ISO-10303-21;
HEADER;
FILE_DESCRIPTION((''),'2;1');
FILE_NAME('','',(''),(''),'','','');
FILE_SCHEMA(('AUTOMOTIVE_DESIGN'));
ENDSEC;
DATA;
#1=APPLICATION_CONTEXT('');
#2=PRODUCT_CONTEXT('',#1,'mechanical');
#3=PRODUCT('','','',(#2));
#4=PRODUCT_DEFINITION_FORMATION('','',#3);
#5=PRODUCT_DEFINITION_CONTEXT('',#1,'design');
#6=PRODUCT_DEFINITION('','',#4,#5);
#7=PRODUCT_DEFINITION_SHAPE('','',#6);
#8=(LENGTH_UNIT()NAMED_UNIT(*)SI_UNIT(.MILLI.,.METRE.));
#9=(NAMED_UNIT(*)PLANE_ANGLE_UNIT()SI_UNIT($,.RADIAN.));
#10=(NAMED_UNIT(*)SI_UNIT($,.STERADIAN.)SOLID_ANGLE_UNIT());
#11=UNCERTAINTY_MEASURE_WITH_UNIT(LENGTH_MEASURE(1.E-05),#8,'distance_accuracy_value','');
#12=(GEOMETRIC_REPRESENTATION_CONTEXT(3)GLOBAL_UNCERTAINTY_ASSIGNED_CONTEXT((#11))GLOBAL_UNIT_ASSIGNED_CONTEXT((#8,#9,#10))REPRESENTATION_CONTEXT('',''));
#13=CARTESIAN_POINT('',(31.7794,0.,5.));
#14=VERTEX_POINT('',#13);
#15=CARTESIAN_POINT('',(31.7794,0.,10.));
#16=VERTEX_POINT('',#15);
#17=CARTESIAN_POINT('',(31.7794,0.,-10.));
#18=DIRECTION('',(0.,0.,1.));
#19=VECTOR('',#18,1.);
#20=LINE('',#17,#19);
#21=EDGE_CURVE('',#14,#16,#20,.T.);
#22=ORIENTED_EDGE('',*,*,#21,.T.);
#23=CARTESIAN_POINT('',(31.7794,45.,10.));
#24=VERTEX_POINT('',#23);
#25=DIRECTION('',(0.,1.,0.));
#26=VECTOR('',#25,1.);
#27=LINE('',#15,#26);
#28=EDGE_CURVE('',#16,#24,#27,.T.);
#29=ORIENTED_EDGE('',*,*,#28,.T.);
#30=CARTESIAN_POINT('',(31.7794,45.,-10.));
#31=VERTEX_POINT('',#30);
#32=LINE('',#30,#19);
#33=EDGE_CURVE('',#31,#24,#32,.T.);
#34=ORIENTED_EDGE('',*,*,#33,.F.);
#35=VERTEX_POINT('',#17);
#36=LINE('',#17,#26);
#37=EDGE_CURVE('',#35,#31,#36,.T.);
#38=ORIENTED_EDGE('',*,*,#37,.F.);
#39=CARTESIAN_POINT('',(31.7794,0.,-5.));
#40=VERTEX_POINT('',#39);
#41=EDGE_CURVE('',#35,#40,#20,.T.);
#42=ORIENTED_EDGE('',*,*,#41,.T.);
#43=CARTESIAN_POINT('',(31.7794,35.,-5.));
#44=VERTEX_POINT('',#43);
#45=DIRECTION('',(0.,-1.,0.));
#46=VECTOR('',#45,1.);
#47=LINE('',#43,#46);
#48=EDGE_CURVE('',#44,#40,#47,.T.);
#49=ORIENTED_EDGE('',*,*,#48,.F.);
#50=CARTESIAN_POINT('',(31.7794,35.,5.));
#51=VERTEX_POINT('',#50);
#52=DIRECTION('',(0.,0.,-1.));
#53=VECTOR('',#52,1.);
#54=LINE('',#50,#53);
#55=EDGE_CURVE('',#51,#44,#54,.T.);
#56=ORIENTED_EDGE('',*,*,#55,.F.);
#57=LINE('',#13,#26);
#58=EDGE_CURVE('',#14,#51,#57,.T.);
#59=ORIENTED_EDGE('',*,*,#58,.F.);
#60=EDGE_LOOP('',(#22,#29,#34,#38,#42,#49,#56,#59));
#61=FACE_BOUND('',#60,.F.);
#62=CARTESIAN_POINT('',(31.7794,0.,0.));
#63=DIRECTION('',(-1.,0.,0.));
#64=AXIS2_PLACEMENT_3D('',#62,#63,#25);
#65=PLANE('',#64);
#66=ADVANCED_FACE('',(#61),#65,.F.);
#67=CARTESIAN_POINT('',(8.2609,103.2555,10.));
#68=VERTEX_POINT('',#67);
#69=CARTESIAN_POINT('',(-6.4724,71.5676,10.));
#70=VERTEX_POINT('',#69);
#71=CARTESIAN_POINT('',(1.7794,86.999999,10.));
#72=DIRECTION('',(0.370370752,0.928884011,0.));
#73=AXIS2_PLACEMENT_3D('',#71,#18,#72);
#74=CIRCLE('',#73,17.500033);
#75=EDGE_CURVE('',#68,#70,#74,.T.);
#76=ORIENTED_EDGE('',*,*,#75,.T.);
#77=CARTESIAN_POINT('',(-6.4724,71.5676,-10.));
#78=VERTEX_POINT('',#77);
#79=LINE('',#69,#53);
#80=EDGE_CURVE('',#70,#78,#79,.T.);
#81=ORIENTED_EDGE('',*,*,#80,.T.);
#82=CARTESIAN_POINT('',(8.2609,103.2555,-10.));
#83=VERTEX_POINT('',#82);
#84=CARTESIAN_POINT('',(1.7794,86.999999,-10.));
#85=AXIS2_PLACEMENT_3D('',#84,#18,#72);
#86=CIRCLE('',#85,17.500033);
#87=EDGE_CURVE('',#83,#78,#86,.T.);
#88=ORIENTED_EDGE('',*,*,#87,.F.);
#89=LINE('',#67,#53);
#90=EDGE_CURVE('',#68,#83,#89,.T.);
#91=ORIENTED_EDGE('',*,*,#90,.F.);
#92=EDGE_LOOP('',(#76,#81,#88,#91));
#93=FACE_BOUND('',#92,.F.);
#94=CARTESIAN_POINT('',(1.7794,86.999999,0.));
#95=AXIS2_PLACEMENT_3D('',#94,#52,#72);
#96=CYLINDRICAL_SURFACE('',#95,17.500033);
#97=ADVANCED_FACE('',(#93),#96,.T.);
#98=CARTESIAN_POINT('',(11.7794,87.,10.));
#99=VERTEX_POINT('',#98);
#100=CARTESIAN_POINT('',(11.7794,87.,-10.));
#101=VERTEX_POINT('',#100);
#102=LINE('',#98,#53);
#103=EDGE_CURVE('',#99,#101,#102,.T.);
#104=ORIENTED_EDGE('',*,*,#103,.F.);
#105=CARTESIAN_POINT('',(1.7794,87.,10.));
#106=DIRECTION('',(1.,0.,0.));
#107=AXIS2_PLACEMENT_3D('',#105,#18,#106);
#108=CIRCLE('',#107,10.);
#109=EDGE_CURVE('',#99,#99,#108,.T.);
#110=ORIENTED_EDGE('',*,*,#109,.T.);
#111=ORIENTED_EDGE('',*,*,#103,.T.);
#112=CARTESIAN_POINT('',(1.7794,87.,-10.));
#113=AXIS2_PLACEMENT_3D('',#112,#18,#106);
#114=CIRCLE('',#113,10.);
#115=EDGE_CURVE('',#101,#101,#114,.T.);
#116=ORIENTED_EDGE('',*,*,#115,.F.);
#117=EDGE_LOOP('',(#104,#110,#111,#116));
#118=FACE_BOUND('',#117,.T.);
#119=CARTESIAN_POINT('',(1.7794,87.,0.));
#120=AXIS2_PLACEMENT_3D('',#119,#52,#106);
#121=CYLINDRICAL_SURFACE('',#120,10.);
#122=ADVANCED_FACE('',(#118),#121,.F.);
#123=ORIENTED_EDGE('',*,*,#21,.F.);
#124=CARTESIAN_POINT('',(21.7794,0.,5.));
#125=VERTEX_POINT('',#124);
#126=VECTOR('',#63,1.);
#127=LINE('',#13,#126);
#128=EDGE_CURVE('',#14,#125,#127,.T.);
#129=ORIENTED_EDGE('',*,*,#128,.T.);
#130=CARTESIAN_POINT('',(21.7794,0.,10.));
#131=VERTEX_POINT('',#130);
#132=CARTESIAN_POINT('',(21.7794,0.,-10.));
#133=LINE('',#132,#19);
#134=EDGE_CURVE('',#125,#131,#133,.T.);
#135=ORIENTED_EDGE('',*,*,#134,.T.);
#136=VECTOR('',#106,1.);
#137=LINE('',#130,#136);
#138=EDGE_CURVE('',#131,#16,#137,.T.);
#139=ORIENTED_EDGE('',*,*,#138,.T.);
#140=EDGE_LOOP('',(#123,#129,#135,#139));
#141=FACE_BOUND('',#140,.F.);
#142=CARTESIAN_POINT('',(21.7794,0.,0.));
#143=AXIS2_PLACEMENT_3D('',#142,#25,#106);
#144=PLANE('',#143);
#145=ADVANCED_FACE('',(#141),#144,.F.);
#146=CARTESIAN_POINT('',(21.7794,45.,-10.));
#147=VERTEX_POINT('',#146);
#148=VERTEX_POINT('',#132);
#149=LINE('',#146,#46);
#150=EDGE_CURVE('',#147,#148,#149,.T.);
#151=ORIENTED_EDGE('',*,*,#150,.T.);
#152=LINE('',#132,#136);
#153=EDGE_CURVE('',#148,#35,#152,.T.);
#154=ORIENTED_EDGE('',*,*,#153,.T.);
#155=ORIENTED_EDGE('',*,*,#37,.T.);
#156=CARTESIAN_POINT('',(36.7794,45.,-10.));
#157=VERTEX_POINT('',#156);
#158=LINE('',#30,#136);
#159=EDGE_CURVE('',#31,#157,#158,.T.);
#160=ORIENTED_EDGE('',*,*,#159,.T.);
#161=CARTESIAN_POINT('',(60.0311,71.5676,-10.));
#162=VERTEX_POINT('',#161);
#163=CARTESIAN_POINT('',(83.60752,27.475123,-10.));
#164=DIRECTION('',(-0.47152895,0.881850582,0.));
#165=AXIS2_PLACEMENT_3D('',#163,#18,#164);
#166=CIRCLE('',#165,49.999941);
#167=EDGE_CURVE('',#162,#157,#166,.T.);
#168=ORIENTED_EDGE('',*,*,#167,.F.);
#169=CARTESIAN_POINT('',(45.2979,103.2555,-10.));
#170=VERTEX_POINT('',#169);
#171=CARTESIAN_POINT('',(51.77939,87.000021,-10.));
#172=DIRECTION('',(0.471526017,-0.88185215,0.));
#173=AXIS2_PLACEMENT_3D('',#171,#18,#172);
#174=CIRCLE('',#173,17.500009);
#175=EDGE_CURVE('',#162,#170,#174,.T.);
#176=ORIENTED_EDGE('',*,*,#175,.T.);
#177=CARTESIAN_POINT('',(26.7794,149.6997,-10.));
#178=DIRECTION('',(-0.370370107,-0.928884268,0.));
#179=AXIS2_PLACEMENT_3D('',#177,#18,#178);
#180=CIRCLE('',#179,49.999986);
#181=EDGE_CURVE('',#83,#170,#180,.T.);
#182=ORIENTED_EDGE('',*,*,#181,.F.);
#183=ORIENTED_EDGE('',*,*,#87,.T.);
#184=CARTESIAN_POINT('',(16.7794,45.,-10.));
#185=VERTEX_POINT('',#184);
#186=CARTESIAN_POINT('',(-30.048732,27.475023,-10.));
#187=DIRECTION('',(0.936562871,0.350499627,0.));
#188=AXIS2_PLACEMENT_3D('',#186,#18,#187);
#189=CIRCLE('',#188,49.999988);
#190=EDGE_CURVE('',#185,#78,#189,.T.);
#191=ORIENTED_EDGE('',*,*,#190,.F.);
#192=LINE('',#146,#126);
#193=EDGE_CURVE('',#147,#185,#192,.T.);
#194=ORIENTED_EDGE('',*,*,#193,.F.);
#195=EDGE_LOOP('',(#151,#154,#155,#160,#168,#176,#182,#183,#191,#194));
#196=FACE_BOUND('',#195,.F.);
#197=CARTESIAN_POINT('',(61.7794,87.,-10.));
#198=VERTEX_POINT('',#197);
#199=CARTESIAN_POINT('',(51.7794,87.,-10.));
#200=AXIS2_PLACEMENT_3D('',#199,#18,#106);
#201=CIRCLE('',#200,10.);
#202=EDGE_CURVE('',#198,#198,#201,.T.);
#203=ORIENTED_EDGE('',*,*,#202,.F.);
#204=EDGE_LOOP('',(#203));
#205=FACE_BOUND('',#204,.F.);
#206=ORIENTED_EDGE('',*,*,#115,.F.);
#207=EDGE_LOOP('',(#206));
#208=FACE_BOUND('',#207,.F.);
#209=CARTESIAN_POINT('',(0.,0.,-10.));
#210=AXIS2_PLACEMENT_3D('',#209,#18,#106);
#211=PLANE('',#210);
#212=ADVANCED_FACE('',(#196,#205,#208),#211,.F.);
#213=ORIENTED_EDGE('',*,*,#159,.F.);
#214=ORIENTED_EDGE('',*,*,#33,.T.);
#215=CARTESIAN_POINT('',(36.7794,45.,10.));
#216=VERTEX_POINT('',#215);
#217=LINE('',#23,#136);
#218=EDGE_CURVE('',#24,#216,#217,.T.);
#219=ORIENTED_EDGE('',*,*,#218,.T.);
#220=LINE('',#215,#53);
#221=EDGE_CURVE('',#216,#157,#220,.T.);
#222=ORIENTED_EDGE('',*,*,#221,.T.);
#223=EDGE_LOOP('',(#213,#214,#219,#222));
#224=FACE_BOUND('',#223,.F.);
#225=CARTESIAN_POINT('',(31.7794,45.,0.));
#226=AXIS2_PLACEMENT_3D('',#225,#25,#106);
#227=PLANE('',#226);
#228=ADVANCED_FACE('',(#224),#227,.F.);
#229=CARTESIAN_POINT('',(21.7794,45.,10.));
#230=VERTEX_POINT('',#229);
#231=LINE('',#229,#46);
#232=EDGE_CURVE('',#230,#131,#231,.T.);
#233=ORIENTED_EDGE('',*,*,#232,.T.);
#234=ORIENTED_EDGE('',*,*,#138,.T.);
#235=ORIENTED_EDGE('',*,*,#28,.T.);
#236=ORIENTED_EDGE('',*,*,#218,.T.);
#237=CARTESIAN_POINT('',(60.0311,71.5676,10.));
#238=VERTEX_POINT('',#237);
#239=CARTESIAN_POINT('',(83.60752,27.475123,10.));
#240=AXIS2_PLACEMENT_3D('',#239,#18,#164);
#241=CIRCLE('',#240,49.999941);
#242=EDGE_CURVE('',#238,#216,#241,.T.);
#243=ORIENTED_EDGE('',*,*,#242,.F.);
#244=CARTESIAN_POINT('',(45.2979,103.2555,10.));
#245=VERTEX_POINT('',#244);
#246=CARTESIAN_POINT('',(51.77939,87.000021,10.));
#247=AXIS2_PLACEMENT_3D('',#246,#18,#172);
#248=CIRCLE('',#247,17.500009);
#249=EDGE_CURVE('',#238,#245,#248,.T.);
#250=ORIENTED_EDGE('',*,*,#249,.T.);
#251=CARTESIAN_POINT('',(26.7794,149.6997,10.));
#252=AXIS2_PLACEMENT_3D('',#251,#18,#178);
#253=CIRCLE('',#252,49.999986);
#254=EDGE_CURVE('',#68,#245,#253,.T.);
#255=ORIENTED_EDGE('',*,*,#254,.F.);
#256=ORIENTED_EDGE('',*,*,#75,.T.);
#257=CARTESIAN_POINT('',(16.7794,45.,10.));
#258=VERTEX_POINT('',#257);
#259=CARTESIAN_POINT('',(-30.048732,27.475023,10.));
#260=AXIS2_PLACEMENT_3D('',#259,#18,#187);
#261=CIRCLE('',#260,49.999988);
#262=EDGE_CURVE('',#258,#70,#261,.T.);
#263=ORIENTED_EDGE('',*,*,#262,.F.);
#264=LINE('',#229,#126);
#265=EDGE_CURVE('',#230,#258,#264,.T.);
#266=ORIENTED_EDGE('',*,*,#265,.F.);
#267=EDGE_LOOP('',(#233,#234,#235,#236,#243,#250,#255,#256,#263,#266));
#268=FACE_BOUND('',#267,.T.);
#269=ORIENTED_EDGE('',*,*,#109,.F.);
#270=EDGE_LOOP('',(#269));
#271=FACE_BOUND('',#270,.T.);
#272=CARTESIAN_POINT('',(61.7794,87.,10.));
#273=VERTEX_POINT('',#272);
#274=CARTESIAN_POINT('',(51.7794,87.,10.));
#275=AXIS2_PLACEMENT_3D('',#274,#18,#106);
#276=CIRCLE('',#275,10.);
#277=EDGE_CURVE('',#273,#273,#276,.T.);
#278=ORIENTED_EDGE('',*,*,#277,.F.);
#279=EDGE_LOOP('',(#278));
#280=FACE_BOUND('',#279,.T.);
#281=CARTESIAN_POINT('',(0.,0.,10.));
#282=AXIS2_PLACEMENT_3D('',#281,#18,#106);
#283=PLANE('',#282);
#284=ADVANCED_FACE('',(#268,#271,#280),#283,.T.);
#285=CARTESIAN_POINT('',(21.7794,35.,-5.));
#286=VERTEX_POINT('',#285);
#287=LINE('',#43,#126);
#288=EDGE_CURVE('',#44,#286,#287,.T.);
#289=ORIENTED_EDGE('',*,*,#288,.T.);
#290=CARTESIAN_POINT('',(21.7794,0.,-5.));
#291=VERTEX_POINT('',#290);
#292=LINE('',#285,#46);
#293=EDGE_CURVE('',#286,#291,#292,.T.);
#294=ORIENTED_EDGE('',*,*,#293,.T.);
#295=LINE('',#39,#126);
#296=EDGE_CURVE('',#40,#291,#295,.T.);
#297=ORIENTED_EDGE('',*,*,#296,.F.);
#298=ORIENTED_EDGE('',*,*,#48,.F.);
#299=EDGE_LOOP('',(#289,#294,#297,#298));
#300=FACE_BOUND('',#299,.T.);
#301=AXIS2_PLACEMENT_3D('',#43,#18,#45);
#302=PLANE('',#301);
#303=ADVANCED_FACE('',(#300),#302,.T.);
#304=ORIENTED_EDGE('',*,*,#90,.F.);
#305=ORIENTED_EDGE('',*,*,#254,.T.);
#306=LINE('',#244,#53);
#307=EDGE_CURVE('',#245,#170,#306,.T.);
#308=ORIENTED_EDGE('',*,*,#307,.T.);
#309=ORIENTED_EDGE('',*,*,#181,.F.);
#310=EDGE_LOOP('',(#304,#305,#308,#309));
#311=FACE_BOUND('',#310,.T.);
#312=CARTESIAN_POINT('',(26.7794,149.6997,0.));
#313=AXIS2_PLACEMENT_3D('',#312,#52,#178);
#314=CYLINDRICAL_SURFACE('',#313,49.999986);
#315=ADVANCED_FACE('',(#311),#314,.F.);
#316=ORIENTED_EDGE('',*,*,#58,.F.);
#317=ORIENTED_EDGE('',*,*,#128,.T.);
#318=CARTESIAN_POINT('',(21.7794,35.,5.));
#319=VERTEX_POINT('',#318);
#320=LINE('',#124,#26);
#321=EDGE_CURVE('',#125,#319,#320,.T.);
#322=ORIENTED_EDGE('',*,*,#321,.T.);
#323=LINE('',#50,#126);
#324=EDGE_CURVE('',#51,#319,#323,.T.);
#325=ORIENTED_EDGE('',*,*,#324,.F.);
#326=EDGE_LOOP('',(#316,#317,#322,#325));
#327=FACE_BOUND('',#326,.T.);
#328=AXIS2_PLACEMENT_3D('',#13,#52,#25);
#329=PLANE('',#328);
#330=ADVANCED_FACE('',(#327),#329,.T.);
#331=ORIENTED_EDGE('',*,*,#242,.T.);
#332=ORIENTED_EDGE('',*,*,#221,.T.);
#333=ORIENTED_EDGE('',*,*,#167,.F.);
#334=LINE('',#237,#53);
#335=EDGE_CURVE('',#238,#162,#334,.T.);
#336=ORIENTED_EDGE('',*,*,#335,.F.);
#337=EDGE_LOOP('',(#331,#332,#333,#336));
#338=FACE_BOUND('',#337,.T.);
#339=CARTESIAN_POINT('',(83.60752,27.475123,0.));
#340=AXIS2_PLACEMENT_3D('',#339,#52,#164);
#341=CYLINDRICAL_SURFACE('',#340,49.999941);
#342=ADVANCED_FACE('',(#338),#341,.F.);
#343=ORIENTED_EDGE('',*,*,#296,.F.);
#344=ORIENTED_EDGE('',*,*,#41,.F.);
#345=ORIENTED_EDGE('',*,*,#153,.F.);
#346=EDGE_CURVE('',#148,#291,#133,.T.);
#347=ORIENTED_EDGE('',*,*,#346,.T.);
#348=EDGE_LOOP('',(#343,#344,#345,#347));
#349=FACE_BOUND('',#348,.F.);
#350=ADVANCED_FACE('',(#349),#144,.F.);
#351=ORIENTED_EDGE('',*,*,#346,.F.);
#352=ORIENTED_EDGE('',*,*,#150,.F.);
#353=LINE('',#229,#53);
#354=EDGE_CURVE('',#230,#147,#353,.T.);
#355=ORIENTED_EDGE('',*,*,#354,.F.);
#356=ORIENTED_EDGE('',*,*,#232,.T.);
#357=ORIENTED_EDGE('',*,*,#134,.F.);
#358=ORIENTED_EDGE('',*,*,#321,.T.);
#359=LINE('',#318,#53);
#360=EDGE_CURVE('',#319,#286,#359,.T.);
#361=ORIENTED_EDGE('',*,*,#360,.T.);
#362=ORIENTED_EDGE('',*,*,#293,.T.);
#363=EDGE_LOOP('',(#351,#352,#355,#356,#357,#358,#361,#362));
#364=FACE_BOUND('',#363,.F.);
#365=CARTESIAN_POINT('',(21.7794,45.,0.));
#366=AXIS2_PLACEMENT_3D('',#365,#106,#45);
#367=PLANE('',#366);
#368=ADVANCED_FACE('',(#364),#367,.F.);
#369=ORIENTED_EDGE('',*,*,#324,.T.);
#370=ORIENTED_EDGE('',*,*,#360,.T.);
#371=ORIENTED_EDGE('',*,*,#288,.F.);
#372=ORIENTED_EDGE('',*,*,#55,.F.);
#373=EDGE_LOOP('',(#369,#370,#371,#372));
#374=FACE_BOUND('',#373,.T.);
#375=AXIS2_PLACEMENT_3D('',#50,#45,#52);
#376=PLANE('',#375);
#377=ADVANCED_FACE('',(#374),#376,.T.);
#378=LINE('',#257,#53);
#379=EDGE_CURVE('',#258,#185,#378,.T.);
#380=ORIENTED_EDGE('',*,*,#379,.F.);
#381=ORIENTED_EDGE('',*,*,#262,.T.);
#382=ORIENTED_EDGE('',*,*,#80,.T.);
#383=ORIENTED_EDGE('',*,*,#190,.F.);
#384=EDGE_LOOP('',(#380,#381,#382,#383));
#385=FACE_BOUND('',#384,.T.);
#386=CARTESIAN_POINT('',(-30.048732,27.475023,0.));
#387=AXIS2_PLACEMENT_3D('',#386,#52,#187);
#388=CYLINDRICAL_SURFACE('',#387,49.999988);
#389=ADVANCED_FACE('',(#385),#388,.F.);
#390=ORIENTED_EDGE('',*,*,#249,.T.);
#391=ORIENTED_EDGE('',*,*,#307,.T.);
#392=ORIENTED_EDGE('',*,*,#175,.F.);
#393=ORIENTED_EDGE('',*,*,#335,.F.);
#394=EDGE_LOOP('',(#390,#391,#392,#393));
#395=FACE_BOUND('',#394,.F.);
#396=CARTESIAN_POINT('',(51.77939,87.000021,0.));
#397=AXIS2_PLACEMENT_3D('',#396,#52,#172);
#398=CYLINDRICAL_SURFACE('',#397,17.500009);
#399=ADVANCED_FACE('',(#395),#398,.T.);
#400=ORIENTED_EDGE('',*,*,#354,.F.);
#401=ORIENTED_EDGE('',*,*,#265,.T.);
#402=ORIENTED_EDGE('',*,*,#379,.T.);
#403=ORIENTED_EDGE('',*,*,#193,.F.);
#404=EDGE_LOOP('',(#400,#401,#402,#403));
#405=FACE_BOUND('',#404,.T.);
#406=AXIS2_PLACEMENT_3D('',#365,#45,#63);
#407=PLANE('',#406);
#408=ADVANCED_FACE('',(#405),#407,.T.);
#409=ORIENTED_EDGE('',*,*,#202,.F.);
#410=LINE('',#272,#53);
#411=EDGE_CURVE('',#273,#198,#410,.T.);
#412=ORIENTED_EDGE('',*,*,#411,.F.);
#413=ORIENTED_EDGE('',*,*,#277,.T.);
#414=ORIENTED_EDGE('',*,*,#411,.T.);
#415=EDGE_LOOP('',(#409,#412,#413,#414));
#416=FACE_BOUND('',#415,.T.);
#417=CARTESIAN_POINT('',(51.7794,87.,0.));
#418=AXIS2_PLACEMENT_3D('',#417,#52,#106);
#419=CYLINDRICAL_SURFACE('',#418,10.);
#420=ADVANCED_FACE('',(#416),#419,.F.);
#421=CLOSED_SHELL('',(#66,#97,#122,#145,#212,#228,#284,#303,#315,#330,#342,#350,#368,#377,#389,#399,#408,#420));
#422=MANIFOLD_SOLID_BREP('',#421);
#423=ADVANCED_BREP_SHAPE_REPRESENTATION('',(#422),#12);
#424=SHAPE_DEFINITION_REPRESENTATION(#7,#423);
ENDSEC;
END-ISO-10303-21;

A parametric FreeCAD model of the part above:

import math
import FreeCAD as App
import Part
import Sketcher

doc = App.newDocument("Part")
params = doc.addObject("Spreadsheet::Sheet", "Params")
for row, (alias, value) in enumerate([
    ("sketch1_diameter", "20 mm"),
    ("sketch1_radius", "50 mm"),
    ("sketch1_radius2", "17.5 mm"),
    ("sketch1_width", "10 mm"),
    ("sketch1_width2", "5 mm"),
    ("pad1_length", "20 mm"),
    ("sketch2_width", "35 mm"),
    ("sketch2_height", "10 mm"),
    ("pocket1_length", "10 mm"),
], start=1):
    params.set(f"A{row}", alias)
    params.set(f"B{row}", "=" + value)
    params.setAlias(f"B{row}", alias)

body = doc.addObject("PartDesign::Body", "Body")

sketch1 = doc.addObject("Sketcher::SketchObject", "Sketch")
body.addObject(sketch1)
sketch1.AttachmentSupport = (doc.XY_Plane, [""])
sketch1.MapMode = "FlatFace"
sketch1.addGeometry([
    Part.LineSegment(App.Vector(22, 45, 0), App.Vector(22, 0, 0)),
    Part.LineSegment(App.Vector(22, 0, 0), App.Vector(32, 0, 0)),
    Part.LineSegment(App.Vector(32, 0, 0), App.Vector(32, 45, 0)),
    Part.LineSegment(App.Vector(32, 45, 0), App.Vector(37, 45, 0)),
    Part.ArcOfCircle(Part.Circle(App.Vector(84, 27, 0), App.Vector(0, 0, 1), 50), math.radians(118), math.radians(159)),
    Part.ArcOfCircle(Part.Circle(App.Vector(52, 87, 0), App.Vector(0, 0, 1), 17), math.radians(-62), math.radians(112)),
    Part.ArcOfCircle(Part.Circle(App.Vector(27, 150, 0), App.Vector(0, 0, 1), 50), math.radians(-112), math.radians(-68)),
    Part.ArcOfCircle(Part.Circle(App.Vector(2, 87, 0), App.Vector(0, 0, 1), 18), math.radians(68), math.radians(242)),
    Part.ArcOfCircle(Part.Circle(App.Vector(-30, 27, 0), App.Vector(0, 0, 1), 50), math.radians(21), math.radians(62)),
    Part.LineSegment(App.Vector(17, 45, 0), App.Vector(22, 45, 0)),
    Part.Circle(App.Vector(2, 87, 0), App.Vector(0, 0, 1), 10),
    Part.Circle(App.Vector(52, 87, 0), App.Vector(0, 0, 1), 10),
], False)
sketch1.addConstraint([
    Sketcher.Constraint("Coincident", 0, 2, 1, 1),
    Sketcher.Constraint("Coincident", 1, 2, 2, 1),
    Sketcher.Constraint("Coincident", 2, 2, 3, 1),
    Sketcher.Constraint("Coincident", 3, 2, 4, 2),
    Sketcher.Constraint("Tangent", 4, 1, 5, 1),
    Sketcher.Constraint("Tangent", 5, 2, 6, 2),
    Sketcher.Constraint("Tangent", 6, 1, 7, 1),
    Sketcher.Constraint("Tangent", 7, 2, 8, 2),
    Sketcher.Constraint("Coincident", 8, 1, 9, 1),
    Sketcher.Constraint("Coincident", 9, 2, 0, 1),
    Sketcher.Constraint("Vertical", 0),
    Sketcher.Constraint("Horizontal", 1),
    Sketcher.Constraint("Vertical", 2),
    Sketcher.Constraint("Horizontal", 3),
    Sketcher.Constraint("Horizontal", 9),
    Sketcher.Constraint("Coincident", 10, 3, 7, 3),
    Sketcher.Constraint("Coincident", 11, 3, 5, 3),
    Sketcher.Constraint("Equal", 4, 6),
    Sketcher.Constraint("Equal", 5, 7),
    Sketcher.Constraint("Equal", 6, 8),
    Sketcher.Constraint("Equal", 10, 11),
    Sketcher.Constraint("PointOnObject", 0, 2, -1),
    Sketcher.Constraint("Horizontal", 5, 3, 7, 3),
    Sketcher.Constraint("Horizontal", 4, 3, 8, 3),
    Sketcher.Constraint("Horizontal", 3, 2, 8, 1),
    Sketcher.Constraint("Equal", 3, 9),
    Sketcher.Constraint("Diameter", 10, 20.0),
    Sketcher.Constraint("Radius", 4, 50.0),
    Sketcher.Constraint("Radius", 5, 17.5),
    Sketcher.Constraint("DistanceX", 1, 1, 1, 2, 10.0),
    Sketcher.Constraint("DistanceX", 3, 1, 3, 2, 5.0),
    Sketcher.Constraint("DistanceY", 0, 2, 0, 1, 45.0),
    Sketcher.Constraint("DistanceY", -1, 1, 5, 3, 87.0),
    Sketcher.Constraint("DistanceX", 7, 3, 5, 3, 50.0),
    Sketcher.Constraint("DistanceX", -1, 1, 0, 2, 21.7794),
])
sketch1.setExpression("Constraints[26]", "Params.sketch1_diameter")
sketch1.setExpression("Constraints[27]", "Params.sketch1_radius")
sketch1.setExpression("Constraints[28]", "Params.sketch1_radius2")
sketch1.setExpression("Constraints[29]", "Params.sketch1_width")
sketch1.setExpression("Constraints[30]", "Params.sketch1_width2")
pad1 = doc.addObject("PartDesign::Pad", "Pad")
body.addObject(pad1)
pad1.Profile = sketch1
pad1.setExpression("Length", "Params.pad1_length")
pad1.Midplane = True

sketch2 = doc.addObject("Sketcher::SketchObject", "Sketch001")
body.addObject(sketch2)
sketch2.AttachmentSupport = (doc.YZ_Plane, [""])
sketch2.MapMode = "FlatFace"
sketch2.AttachmentOffset = App.Placement(App.Vector(0, 0, 31.7794), App.Rotation())
sketch2.addGeometry([
    Part.LineSegment(App.Vector(0, 5, 0), App.Vector(0, -5, 0)),
    Part.LineSegment(App.Vector(0, -5, 0), App.Vector(35, -5, 0)),
    Part.LineSegment(App.Vector(35, -5, 0), App.Vector(35, 5, 0)),
    Part.LineSegment(App.Vector(35, 5, 0), App.Vector(0, 5, 0)),
], False)
sketch2.addConstraint([
    Sketcher.Constraint("Coincident", 0, 2, 1, 1),
    Sketcher.Constraint("Coincident", 1, 2, 2, 1),
    Sketcher.Constraint("Coincident", 2, 2, 3, 1),
    Sketcher.Constraint("Coincident", 3, 2, 0, 1),
    Sketcher.Constraint("Vertical", 0),
    Sketcher.Constraint("Horizontal", 1),
    Sketcher.Constraint("Vertical", 2),
    Sketcher.Constraint("Horizontal", 3),
    Sketcher.Constraint("Symmetric", 0, 2, 3, 2, -1, 1),
    Sketcher.Constraint("DistanceX", 1, 1, 1, 2, 35.0),
    Sketcher.Constraint("DistanceY", 0, 2, 0, 1, 10.0),
])
sketch2.setExpression("Constraints[9]", "Params.sketch2_width")
sketch2.setExpression("Constraints[10]", "Params.sketch2_height")
pocket1 = doc.addObject("PartDesign::Pocket", "Pocket")
body.addObject(pocket1)
pocket1.Profile = sketch2
pocket1.setExpression("Length", "Params.pocket1_length")

doc.recompute()
